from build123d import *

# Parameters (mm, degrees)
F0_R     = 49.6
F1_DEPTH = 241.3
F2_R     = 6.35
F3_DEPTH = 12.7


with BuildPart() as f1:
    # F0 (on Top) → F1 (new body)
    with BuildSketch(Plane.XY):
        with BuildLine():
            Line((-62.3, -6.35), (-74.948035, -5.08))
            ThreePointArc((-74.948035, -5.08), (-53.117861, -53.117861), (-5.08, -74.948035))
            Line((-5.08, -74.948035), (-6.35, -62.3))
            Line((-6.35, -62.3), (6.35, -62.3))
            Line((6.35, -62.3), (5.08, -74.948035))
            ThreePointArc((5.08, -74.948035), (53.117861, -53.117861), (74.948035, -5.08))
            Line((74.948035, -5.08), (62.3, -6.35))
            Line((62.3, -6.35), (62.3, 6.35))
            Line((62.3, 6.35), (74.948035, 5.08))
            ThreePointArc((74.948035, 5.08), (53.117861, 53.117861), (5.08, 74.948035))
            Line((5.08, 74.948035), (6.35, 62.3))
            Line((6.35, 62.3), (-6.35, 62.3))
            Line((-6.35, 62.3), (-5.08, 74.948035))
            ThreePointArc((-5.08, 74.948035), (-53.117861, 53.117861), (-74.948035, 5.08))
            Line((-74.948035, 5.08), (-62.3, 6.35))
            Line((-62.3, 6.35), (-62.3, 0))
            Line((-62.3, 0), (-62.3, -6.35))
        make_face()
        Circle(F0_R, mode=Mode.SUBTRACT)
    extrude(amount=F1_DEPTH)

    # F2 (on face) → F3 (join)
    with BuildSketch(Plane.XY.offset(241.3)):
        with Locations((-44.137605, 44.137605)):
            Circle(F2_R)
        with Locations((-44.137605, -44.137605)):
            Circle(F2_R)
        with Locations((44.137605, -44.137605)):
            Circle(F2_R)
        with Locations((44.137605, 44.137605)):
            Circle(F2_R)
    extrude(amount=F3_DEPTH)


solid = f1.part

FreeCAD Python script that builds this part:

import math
import FreeCAD as App
import Part
import Sketcher
from FreeCAD import Vector
Q = App.Units.Quantity

doc = App.newDocument("Part")
params = doc.addObject("Spreadsheet::Sheet", "Params")
for row, (alias, value) in enumerate([
    ("sketch1_width", "0.5 in"),
    ("pad1_length", "9.5 in"),
    ("sketch2_diameter", "0.5 in"),
    ("pad2_length", "0.5 in"),
], start=1):
    params.set(f"A{row}", alias)
    params.set(f"B{row}", "=" + value)
    params.setAlias(f"B{row}", alias)

body = doc.addObject("PartDesign::Body", "Body")

sketch1 = doc.addObject("Sketcher::SketchObject", "Sketch")
body.addObject(sketch1)
sketch1.AttachmentSupport = (doc.XY_Plane, [""])
sketch1.MapMode = "FlatFace"
sketch1.addGeometry([
    Part.LineSegment(Vector(-62, -6, 0), Vector(-75, -5, 0)),
    Part.ArcOfCircle(Part.Circle(Vector(0, 0, 0), Vector(0, 0, 1), 75), math.radians(-176), math.radians(-94)),
    Part.LineSegment(Vector(-5, -75, 0), Vector(-6, -62, 0)),
    Part.LineSegment(Vector(-6, -62, 0), Vector(6, -62, 0)),
    Part.LineSegment(Vector(6, -62, 0), Vector(5, -75, 0)),
    Part.ArcOfCircle(Part.Circle(Vector(0, 0, 0), Vector(0, 0, 1), 75), math.radians(-86), math.radians(-4)),
    Part.LineSegment(Vector(75, -5, 0), Vector(62, -6, 0)),
    Part.LineSegment(Vector(62, -6, 0), Vector(62, 6, 0)),
    Part.LineSegment(Vector(62, 6, 0), Vector(75, 5, 0)),
    Part.ArcOfCircle(Part.Circle(Vector(0, 0, 0), Vector(0, 0, 1), 75), math.radians(4), math.radians(86)),
    Part.LineSegment(Vector(5, 75, 0), Vector(6, 62, 0)),
    Part.LineSegment(Vector(6, 62, 0), Vector(-6, 62, 0)),
    Part.LineSegment(Vector(-6, 62, 0), Vector(-5, 75, 0)),
    Part.ArcOfCircle(Part.Circle(Vector(0, 0, 0), Vector(0, 0, 1), 75), math.radians(94), math.radians(176)),
    Part.LineSegment(Vector(-75, 5, 0), Vector(-62, 6, 0)),
    Part.LineSegment(Vector(-62, 6, 0), Vector(-62, -6, 0)),
    Part.Circle(Vector(0, 0, 0), Vector(0, 0, 1), 50),
], False)
sketch1.addConstraint([
    Sketcher.Constraint("Coincident", 0, 2, 1, 1),
    Sketcher.Constraint("Coincident", 1, 2, 2, 1),
    Sketcher.Constraint("Coincident", 2, 2, 3, 1),
    Sketcher.Constraint("Coincident", 3, 2, 4, 1),
    Sketcher.Constraint("Coincident", 4, 2, 5, 1),
    Sketcher.Constraint("Coincident", 5, 2, 6, 1),
    Sketcher.Constraint("Coincident", 6, 2, 7, 1),
    Sketcher.Constraint("Coincident", 7, 2, 8, 1),
    Sketcher.Constraint("Coincident", 8, 2, 9, 1),
    Sketcher.Constraint("Coincident", 9, 2, 10, 1),
    Sketcher.Constraint("Coincident", 10, 2, 11, 1),
    Sketcher.Constraint("Coincident", 11, 2, 12, 1),
    Sketcher.Constraint("Coincident", 12, 2, 13, 1),
    Sketcher.Constraint("Coincident", 13, 2, 14, 1),
    Sketcher.Constraint("Coincident", 14, 2, 15, 1),
    Sketcher.Constraint("Coincident", 15, 2, 0, 1),
    Sketcher.Constraint("Horizontal", 3),
    Sketcher.Constraint("Vertical", 7),
    Sketcher.Constraint("Horizontal", 11),
    Sketcher.Constraint("Vertical", 15),
    Sketcher.Constraint("Coincident", 1, 3, -1, 1),
    Sketcher.Constraint("Coincident", 5, 3, -1, 1),
    Sketcher.Constraint("Coincident", 9, 3, -1, 1),
    Sketcher.Constraint("Coincident", 13, 3, -1, 1),
    Sketcher.Constraint("Coincident", 16, 3, -1, 1),
    Sketcher.Constraint("Equal", 1, 5),
    Sketcher.Constraint("Equal", 5, 9),
    Sketcher.Constraint("Equal", 9, 13),
    Sketcher.Constraint("Symmetric", 2, 2, 10, 2, -1, 1),
    Sketcher.Constraint("Symmetric", 6, 2, 14, 2, -1, 1),
    Sketcher.Constraint("Perpendicular", 0, 4),
    Sketcher.Constraint("Perpendicular", 2, 6),
    Sketcher.Constraint("Perpendicular", 4, 8),
    Sketcher.Constraint("Perpendicular", 6, 10),
    Sketcher.Constraint("Perpendicular", 8, 12),
    Sketcher.Constraint("Perpendicular", 10, 14),
    Sketcher.Constraint("Horizontal", 1, 2, 4, 2),
    Sketcher.Constraint("Horizontal", 0, 2, 5, 2),
    Sketcher.Constraint("Horizontal", 9, 2, 12, 2),
    Sketcher.Constraint("Horizontal", 8, 2, 13, 2),
    Sketcher.Constraint("Horizontal", 7, 2, 14, 2),
    Sketcher.Constraint("Equal", 11, 7),
    Sketcher.Constraint("Equal", 0, 2),
    Sketcher.Constraint("DistanceX", 3, 1, 3, 2, Q("0.5 in")),
    Sketcher.Constraint("DistanceY", 0, 2, -1, 1, Q("0.2 in")),
    Sketcher.Constraint("Diameter", 16, 99.2),
    Sketcher.Constraint("Radius", 1, 75.12),
    Sketcher.Constraint("DistanceY", 2, 2, -1, 1, 62.3),
])
sketch1.setExpression("Constraints[43]", "Params.sketch1_width")
pad1 = doc.addObject("PartDesign::Pad", "Pad")
body.addObject(pad1)
pad1.Profile = sketch1
pad1.setExpression("Length", "Params.pad1_length")

sketch2 = doc.addObject("Sketcher::SketchObject", "Sketch001")
body.addObject(sketch2)
sketch2.AttachmentSupport = (doc.XY_Plane, [""])
sketch2.MapMode = "FlatFace"
sketch2.AttachmentOffset = App.Placement(Vector(0, 0, 9.5 * 25.4), App.Rotation())
sketch2.addGeometry([
    Part.Circle(Vector(-44, 44, 0), Vector(0, 0, 1), 6),
    Part.Circle(Vector(-44, -44, 0), Vector(0, 0, 1), 6),
    Part.Circle(Vector(44, -44, 0), Vector(0, 0, 1), 6),
    Part.Circle(Vector(44, 44, 0), Vector(0, 0, 1), 6),
], False)
sketch2.addConstraint([
    Sketcher.Constraint("Equal", 0, 1),
    Sketcher.Constraint("Equal", 1, 2),
    Sketcher.Constraint("Equal", 2, 3),
    Sketcher.Constraint("Symmetric", 0, 3, 2, 3, -1, 1),
    Sketcher.Constraint("Symmetric", 1, 3, 3, 3, -1, 1),
    Sketcher.Constraint("Symmetric", 1, 3, 2, 3, -2),
    Sketcher.Constraint("Diameter", 0, Q("0.5 in")),
    Sketcher.Constraint("DistanceY", 1, 3, 0, 3, 88.27521),
    Sketcher.Constraint("DistanceX", 1, 3, 2, 3, 88.27521),
])
sketch2.setExpression("Constraints[6]", "Params.sketch2_diameter")
pad2 = doc.addObject("PartDesign::Pad", "Pad001")
body.addObject(pad2)
pad2.Profile = sketch2
pad2.setExpression("Length", "Params.pad2_length")

doc.recompute()
